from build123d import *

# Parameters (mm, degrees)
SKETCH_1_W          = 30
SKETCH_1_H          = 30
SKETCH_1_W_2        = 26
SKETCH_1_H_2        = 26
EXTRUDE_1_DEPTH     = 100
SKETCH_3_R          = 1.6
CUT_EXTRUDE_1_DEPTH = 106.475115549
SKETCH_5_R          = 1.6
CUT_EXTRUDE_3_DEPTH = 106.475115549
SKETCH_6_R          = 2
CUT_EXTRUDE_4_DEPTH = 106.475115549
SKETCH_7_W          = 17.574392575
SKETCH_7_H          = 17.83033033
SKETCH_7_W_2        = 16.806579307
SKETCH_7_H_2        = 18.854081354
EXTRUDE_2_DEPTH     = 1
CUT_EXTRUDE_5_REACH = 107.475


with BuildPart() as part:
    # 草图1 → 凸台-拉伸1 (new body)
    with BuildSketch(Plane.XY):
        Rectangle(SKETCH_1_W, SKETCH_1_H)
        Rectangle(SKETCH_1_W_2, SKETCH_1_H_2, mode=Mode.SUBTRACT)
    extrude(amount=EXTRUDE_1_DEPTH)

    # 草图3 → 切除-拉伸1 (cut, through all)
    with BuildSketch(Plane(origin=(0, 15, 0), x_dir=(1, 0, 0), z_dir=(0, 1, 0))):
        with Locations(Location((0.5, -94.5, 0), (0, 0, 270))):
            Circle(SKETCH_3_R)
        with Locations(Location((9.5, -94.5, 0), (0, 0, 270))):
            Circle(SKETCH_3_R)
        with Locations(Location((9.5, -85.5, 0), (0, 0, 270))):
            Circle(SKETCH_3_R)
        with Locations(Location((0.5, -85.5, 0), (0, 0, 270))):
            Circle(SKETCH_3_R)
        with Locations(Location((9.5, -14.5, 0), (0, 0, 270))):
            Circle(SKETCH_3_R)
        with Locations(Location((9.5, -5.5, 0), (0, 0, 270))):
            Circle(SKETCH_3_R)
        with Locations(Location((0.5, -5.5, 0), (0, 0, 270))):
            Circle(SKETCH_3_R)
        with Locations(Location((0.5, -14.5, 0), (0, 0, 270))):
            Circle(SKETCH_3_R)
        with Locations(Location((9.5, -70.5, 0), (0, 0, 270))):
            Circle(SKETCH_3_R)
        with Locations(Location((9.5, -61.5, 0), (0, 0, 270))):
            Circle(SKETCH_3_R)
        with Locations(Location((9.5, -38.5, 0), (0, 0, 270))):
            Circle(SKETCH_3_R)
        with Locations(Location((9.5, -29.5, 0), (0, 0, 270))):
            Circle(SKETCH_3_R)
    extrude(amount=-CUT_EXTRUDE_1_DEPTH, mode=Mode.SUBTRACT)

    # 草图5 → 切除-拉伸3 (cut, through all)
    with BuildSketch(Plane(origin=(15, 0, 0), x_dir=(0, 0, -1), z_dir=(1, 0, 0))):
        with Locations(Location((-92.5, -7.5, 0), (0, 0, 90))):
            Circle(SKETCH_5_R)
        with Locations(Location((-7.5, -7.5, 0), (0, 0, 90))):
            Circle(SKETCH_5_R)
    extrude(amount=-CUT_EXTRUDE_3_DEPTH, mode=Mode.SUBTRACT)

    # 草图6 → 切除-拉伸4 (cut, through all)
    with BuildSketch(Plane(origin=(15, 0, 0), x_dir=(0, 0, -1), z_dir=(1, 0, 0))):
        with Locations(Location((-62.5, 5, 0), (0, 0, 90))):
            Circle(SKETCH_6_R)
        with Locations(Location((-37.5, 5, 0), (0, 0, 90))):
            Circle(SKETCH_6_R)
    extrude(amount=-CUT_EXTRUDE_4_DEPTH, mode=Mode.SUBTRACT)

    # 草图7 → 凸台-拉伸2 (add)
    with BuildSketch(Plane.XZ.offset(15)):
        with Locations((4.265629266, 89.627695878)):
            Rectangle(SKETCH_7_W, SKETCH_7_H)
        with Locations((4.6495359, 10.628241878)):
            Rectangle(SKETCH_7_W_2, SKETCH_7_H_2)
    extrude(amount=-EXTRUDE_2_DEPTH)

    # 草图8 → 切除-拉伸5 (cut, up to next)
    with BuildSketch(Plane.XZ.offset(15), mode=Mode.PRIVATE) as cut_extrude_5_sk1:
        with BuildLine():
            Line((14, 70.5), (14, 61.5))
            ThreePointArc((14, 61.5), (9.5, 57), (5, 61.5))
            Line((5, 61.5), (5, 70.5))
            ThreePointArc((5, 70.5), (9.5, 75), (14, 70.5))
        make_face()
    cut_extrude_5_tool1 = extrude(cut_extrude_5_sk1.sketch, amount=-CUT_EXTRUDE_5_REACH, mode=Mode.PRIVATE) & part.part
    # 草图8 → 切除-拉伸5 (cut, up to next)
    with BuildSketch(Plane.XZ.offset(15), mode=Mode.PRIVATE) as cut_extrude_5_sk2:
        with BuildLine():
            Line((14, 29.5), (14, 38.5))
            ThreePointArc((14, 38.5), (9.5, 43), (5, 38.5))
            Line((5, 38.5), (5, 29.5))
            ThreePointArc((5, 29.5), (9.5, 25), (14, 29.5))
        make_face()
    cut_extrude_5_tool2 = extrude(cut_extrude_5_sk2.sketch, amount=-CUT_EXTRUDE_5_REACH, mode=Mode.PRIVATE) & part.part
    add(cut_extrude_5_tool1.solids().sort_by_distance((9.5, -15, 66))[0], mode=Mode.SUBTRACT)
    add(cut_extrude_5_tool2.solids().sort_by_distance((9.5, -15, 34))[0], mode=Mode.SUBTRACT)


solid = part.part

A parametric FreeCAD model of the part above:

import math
import FreeCAD as App
import Part
import Sketcher
Q = App.Units.Quantity

doc = App.newDocument("Part")
params = doc.addObject("Spreadsheet::Sheet", "Params")
for row, (alias, value) in enumerate([
    ("sketch1_width", "30 mm"),
    ("sketch1_width2", "26 mm"),
    ("pad1_length", "100 mm"),
    ("sketch2_diameter", "3.2 mm"),
    ("sketch3_diameter", "3.2 mm"),
    ("sketch4_diameter", "4 mm"),
    ("pad2_length", "1 mm"),
    ("sketch6_radius", "4.5 mm"),
    ("sketch6_height", "9 mm"),
    ("pocket4_length", "30 mm"),
    ("sketch7_radius", "4.5 mm"),
    ("sketch7_height", "9 mm"),
    ("pocket5_length", "30 mm"),
], start=1):
    params.set(f"A{row}", alias)
    params.set(f"B{row}", "=" + value)
    params.setAlias(f"B{row}", alias)

body = doc.addObject("PartDesign::Body", "Body")

sketch1 = doc.addObject("Sketcher::SketchObject", "Sketch")
body.addObject(sketch1)
sketch1.AttachmentSupport = (doc.XY_Plane, [""])
sketch1.MapMode = "FlatFace"
sketch1.addGeometry([
    Part.LineSegment(App.Vector(-15, 15, 0), App.Vector(-15, -15, 0)),
    Part.LineSegment(App.Vector(-15, -15, 0), App.Vector(15, -15, 0)),
    Part.LineSegment(App.Vector(15, -15, 0), App.Vector(15, 15, 0)),
    Part.LineSegment(App.Vector(15, 15, 0), App.Vector(-15, 15, 0)),
    Part.LineSegment(App.Vector(13, -13, 0), App.Vector(-13, -13, 0)),
    Part.LineSegment(App.Vector(-13, -13, 0), App.Vector(-13, 13, 0)),
    Part.LineSegment(App.Vector(-13, 13, 0), App.Vector(13, 13, 0)),
    Part.LineSegment(App.Vector(13, 13, 0), App.Vector(13, -13, 0)),
], False)
sketch1.addConstraint([
    Sketcher.Constraint("Coincident", 0, 2, 1, 1),
    Sketcher.Constraint("Coincident", 1, 2, 2, 1),
    Sketcher.Constraint("Coincident", 2, 2, 3, 1),
    Sketcher.Constraint("Coincident", 3, 2, 0, 1),
    Sketcher.Constraint("Coincident", 4, 2, 5, 1),
    Sketcher.Constraint("Coincident", 5, 2, 6, 1),
    Sketcher.Constraint("Coincident", 6, 2, 7, 1),
    Sketcher.Constraint("Coincident", 7, 2, 4, 1),
    Sketcher.Constraint("Vertical", 0),
    Sketcher.Constraint("Horizontal", 1),
    Sketcher.Constraint("Vertical", 2),
    Sketcher.Constraint("Horizontal", 3),
    Sketcher.Constraint("Horizontal", 4),
    Sketcher.Constraint("Vertical", 5),
    Sketcher.Constraint("Horizontal", 6),
    Sketcher.Constraint("Vertical", 7),
    Sketcher.Constraint("Symmetric", 0, 2, 2, 2, -1, 1),
    Sketcher.Constraint("Symmetric", 4, 2, 6, 2, -1, 1),
    Sketcher.Constraint("Equal", 3, 0),
    Sketcher.Constraint("Equal", 6, 5),
    Sketcher.Constraint("DistanceX", 1, 1, 1, 2, Q("30 mm")),
    Sketcher.Constraint("DistanceX", 4, 2, 4, 1, Q("26 mm")),
])
sketch1.setExpression("Constraints[20]", "Params.sketch1_width")
sketch1.setExpression("Constraints[21]", "Params.sketch1_width2")
pad1 = doc.addObject("PartDesign::Pad", "Pad")
body.addObject(pad1)
pad1.Profile = sketch1
pad1.setExpression("Length", "Params.pad1_length")

sketch2 = doc.addObject("Sketcher::SketchObject", "Sketch001")
body.addObject(sketch2)
sketch2.AttachmentSupport = (doc.XZ_Plane, [""])
sketch2.MapMode = "FlatFace"
sketch2.AttachmentOffset = App.Placement(App.Vector(0, 0, -15), App.Rotation())
sketch2.addGeometry([
    Part.Circle(App.Vector(0.5, 94.5, 0), App.Vector(0, 0, 1), 1.6),
    Part.Circle(App.Vector(9.5, 94.5, 0), App.Vector(0, 0, 1), 1.6),
    Part.Circle(App.Vector(9.5, 85.5, 0), App.Vector(0, 0, 1), 1.6),
    Part.Circle(App.Vector(0.5, 85.5, 0), App.Vector(0, 0, 1), 1.6),
    Part.Circle(App.Vector(9.5, 14.5, 0), App.Vector(0, 0, 1), 1.6),
    Part.Circle(App.Vector(9.5, 5.5, 0), App.Vector(0, 0, 1), 1.6),
    Part.Circle(App.Vector(0.5, 5.5, 0), App.Vector(0, 0, 1), 1.6),
    Part.Circle(App.Vector(0.5, 14.5, 0), App.Vector(0, 0, 1), 1.6),
    Part.Circle(App.Vector(9.5, 70.5, 0), App.Vector(0, 0, 1), 1.6),
    Part.Circle(App.Vector(9.5, 61.5, 0), App.Vector(0, 0, 1), 1.6),
    Part.Circle(App.Vector(9.5, 38.5, 0), App.Vector(0, 0, 1), 1.6),
    Part.Circle(App.Vector(9.5, 29.5, 0), App.Vector(0, 0, 1), 1.6),
], False)
sketch2.addConstraint([
    Sketcher.Constraint("Equal", 0, 1),
    Sketcher.Constraint("Equal", 1, 2),
    Sketcher.Constraint("Equal", 2, 3),
    Sketcher.Constraint("Equal", 3, 4),
    Sketcher.Constraint("Equal", 4, 5),
    Sketcher.Constraint("Equal", 5, 6),
    Sketcher.Constraint("Equal", 6, 7),
    Sketcher.Constraint("Equal", 7, 8),
    Sketcher.Constraint("Equal", 8, 9),
    Sketcher.Constraint("Equal", 9, 10),
    Sketcher.Constraint("Equal", 10, 11),
    Sketcher.Constraint("Horizontal", 0, 3, 1, 3),
    Sketcher.Constraint("Horizontal", 2, 3, 3, 3),
    Sketcher.Constraint("Horizontal", 5, 3, 6, 3),
    Sketcher.Constraint("Horizontal", 4, 3, 7, 3),
    Sketcher.Constraint("Vertical", 1, 3, 2, 3),
    Sketcher.Constraint("Vertical", 0, 3, 3, 3),
    Sketcher.Constraint("Vertical", 2, 3, 4, 3),
    Sketcher.Constraint("Vertical", 4, 3, 5, 3),
    Sketcher.Constraint("Vertical", 3, 3, 6, 3),
    Sketcher.Constraint("Vertical", 6, 3, 7, 3),
    Sketcher.Constraint("Vertical", 5, 3, 8, 3),
    Sketcher.Constraint("Vertical", 8, 3, 9, 3),
    Sketcher.Constraint("Vertical", 9, 3, 10, 3),
    Sketcher.Constraint("Vertical", 10, 3, 11, 3),
    Sketcher.Constraint("Diameter", 0, Q("3.2 mm")),
    Sketcher.Constraint("DistanceX", 0, 3, 1, 3, Q("9 mm")),
    Sketcher.Constraint("DistanceY", 2, 3, 1, 3, Q("9 mm")),
    Sketcher.Constraint("DistanceY", 4, 3, 2, 3, Q("71 mm")),
    Sketcher.Constraint("DistanceY", 5, 3, 4, 3, Q("9 mm")),
    Sketcher.Constraint("DistanceY", 8, 3, 2, 3, Q("15 mm")),
    Sketcher.Constraint("DistanceY", 9, 3, 8, 3, Q("9 mm")),
    Sketcher.Constraint("DistanceY", 10, 3, 9, 3, Q("23 mm")),
    Sketcher.Constraint("DistanceY", 11, 3, 10, 3, Q("9 mm")),
    Sketcher.Constraint("DistanceX", -1, 1, 0, 3, Q("0.5 mm")),
    Sketcher.Constraint("DistanceY", -1, 1, 0, 3, Q("94.5 mm")),
])
sketch2.setExpression("Constraints[25]", "Params.sketch2_diameter")
pocket1 = doc.addObject("PartDesign::Pocket", "Pocket")
body.addObject(pocket1)
pocket1.Profile = sketch2
pocket1.Type = "ThroughAll"
pocket1.Reversed = True

sketch3 = doc.addObject("Sketcher::SketchObject", "Sketch002")
body.addObject(sketch3)
sketch3.AttachmentSupport = (doc.YZ_Plane, [""])
sketch3.MapMode = "FlatFace"
sketch3.AttachmentOffset = App.Placement(App.Vector(0, 0, 15), App.Rotation())
sketch3.addGeometry([
    Part.Circle(App.Vector(-7.5, 92.5, 0), App.Vector(0, 0, 1), 1.6),
    Part.Circle(App.Vector(-7.5, 7.5, 0), App.Vector(0, 0, 1), 1.6),
], False)
sketch3.addConstraint([
    Sketcher.Constraint("Equal", 0, 1),
    Sketcher.Constraint("Vertical", 0, 3, 1, 3),
    Sketcher.Constraint("Diameter", 0, Q("3.2 mm")),
    Sketcher.Constraint("DistanceY", 1, 3, 0, 3, Q("85 mm")),
    Sketcher.Constraint("DistanceX", 0, 3, -1, 1, Q("7.5 mm")),
    Sketcher.Constraint("DistanceY", -1, 1, 0, 3, Q("92.5 mm")),
])
sketch3.setExpression("Constraints[2]", "Params.sketch3_diameter")
pocket2 = doc.addObject("PartDesign::Pocket", "Pocket001")
body.addObject(pocket2)
pocket2.Profile = sketch3
pocket2.Type = "ThroughAll"

sketch4 = doc.addObject("Sketcher::SketchObject", "Sketch003")
body.addObject(sketch4)
sketch4.AttachmentSupport = (doc.YZ_Plane, [""])
sketch4.MapMode = "FlatFace"
sketch4.AttachmentOffset = App.Placement(App.Vector(0, 0, 15), App.Rotation())
sketch4.addGeometry([
    Part.Circle(App.Vector(5, 62.5, 0), App.Vector(0, 0, 1), 2),
    Part.Circle(App.Vector(5, 37.5, 0), App.Vector(0, 0, 1), 2),
], False)
sketch4.addConstraint([
    Sketcher.Constraint("Equal", 0, 1),
    Sketcher.Constraint("Vertical", 0, 3, 1, 3),
    Sketcher.Constraint("Diameter", 0, Q("4 mm")),
    Sketcher.Constraint("DistanceX", -1, 1, 0, 3, Q("5 mm")),
    Sketcher.Constraint("DistanceY", 1, 3, 0, 3, Q("25 mm")),
    Sketcher.Constraint("DistanceY", -1, 1, 0, 3, Q("62.5 mm")),
])
sketch4.setExpression("Constraints[2]", "Params.sketch4_diameter")
pocket3 = doc.addObject("PartDesign::Pocket", "Pocket002")
body.addObject(pocket3)
pocket3.Profile = sketch4
pocket3.Type = "ThroughAll"

sketch5 = doc.addObject("Sketcher::SketchObject", "Sketch004")
body.addObject(sketch5)
sketch5.AttachmentSupport = (doc.XZ_Plane, [""])
sketch5.MapMode = "FlatFace"
sketch5.AttachmentOffset = App.Placement(App.Vector(0, 0, 15), App.Rotation())
sketch5.addGeometry([
    Part.LineSegment(App.Vector(-4.521567, 98.542861, 0), App.Vector(-4.521567, 80.712531, 0)),
    Part.LineSegment(App.Vector(-4.521567, 80.712531, 0), App.Vector(13.052826, 80.712531, 0)),
    Part.LineSegment(App.Vector(13.052826, 80.712531, 0), App.Vector(13.052826, 98.542861, 0)),
    Part.LineSegment(App.Vector(13.052826, 98.542861, 0), App.Vector(-4.521567, 98.542861, 0)),
    Part.LineSegment(App.Vector(-3.753754, 20.055283, 0), App.Vector(-3.753754, 1.201201, 0)),
    Part.LineSegment(App.Vector(-3.753754, 1.201201, 0), App.Vector(13.052826, 1.201201, 0)),
    Part.LineSegment(App.Vector(13.052826, 1.201201, 0), App.Vector(13.052826, 20.055283, 0)),
    Part.LineSegment(App.Vector(13.052826, 20.055283, 0), App.Vector(-3.753754, 20.055283, 0)),
], False)
sketch5.addConstraint([
    Sketcher.Constraint("Coincident", 0, 2, 1, 1),
    Sketcher.Constraint("Coincident", 1, 2, 2, 1),
    Sketcher.Constraint("Coincident", 2, 2, 3, 1),
    Sketcher.Constraint("Coincident", 3, 2, 0, 1),
    Sketcher.Constraint("Coincident", 4, 2, 5, 1),
    Sketcher.Constraint("Coincident", 5, 2, 6, 1),
    Sketcher.Constraint("Coincident", 6, 2, 7, 1),
    Sketcher.Constraint("Coincident", 7, 2, 4, 1),
    Sketcher.Constraint("Vertical", 0),
    Sketcher.Constraint("Horizontal", 1),
    Sketcher.Constraint("Vertical", 2),
    Sketcher.Constraint("Horizontal", 3),
    Sketcher.Constraint("Vertical", 4),
    Sketcher.Constraint("Horizontal", 5),
    Sketcher.Constraint("Vertical", 6),
    Sketcher.Constraint("Horizontal", 7),
    Sketcher.Constraint("Vertical", 2, 2, 5, 2),
    Sketcher.Constraint("DistanceX", 5, 1, 5, 2, Q("16.806579 mm")),
    Sketcher.Constraint("DistanceY", 0, 2, 0, 1, Q("17.83033 mm")),
    Sketcher.Constraint("DistanceY", 4, 2, 4, 1, Q("18.854081 mm")),
    Sketcher.Constraint("DistanceY", -1, 1, 4, 2, Q("1.201201 mm")),
    Sketcher.Constraint("DistanceX", 1, 1, 1, 2, Q("17.574393 mm")),
    Sketcher.Constraint("DistanceY", -1, 1, 0, 2, Q("80.712531 mm")),
    Sketcher.Constraint("DistanceX", 0, 2, -1, 1, Q("4.521567 mm")),
])
pad2 = doc.addObject("PartDesign::Pad", "Pad001")
body.addObject(pad2)
pad2.Profile = sketch5
pad2.setExpression("Length", "Params.pad2_length")
pad2.Reversed = True

sketch6 = doc.addObject("Sketcher::SketchObject", "Sketch005")
body.addObject(sketch6)
sketch6.AttachmentSupport = (doc.XZ_Plane, [""])
sketch6.MapMode = "FlatFace"
sketch6.AttachmentOffset = App.Placement(App.Vector(0, 0, 15), App.Rotation())
sketch6.addGeometry([
    Part.LineSegment(App.Vector(14, 61.5, 0), App.Vector(14, 70.5, 0)),
    Part.ArcOfCircle(Part.Circle(App.Vector(9.5, 70.5, 0), App.Vector(0, 0, 1), 4.5), math.radians(0), math.radians(180)),
    Part.LineSegment(App.Vector(5, 70.5, 0), App.Vector(5, 61.5, 0)),
    Part.ArcOfCircle(Part.Circle(App.Vector(9.5, 61.5, 0), App.Vector(0, 0, 1), 4.5), math.radians(180), math.radians(360)),
], False)
sketch6.addConstraint([
    Sketcher.Constraint("Tangent", 0, 2, 1, 1),
    Sketcher.Constraint("Tangent", 1, 2, 2, 1),
    Sketcher.Constraint("Tangent", 2, 2, 3, 1),
    Sketcher.Constraint("Tangent", 3, 2, 0, 1),
    Sketcher.Constraint("Vertical", 0),
    Sketcher.Constraint("Vertical", 2),
    Sketcher.Constraint("Radius", 1, Q("4.5 mm")),
    Sketcher.Constraint("DistanceY", 0, 1, 0, 2, Q("9 mm")),
    Sketcher.Constraint("DistanceX", -1, 1, 0, 2, Q("14 mm")),
    Sketcher.Constraint("DistanceY", -1, 1, 1, 3, Q("70.5 mm")),
])
sketch6.setExpression("Constraints[6]", "Params.sketch6_radius")
sketch6.setExpression("Constraints[7]", "Params.sketch6_height")
pocket4 = doc.addObject("PartDesign::Pocket", "Pocket003")
body.addObject(pocket4)
pocket4.Profile = sketch6
pocket4.setExpression("Length", "Params.pocket4_length")

sketch7 = doc.addObject("Sketcher::SketchObject", "Sketch006")
body.addObject(sketch7)
sketch7.AttachmentSupport = (doc.XZ_Plane, [""])
sketch7.MapMode = "FlatFace"
sketch7.AttachmentOffset = App.Placement(App.Vector(0, 0, 15), App.Rotation())
sketch7.addGeometry([
    Part.LineSegment(App.Vector(14, 29.5, 0), App.Vector(14, 38.5, 0)),
    Part.ArcOfCircle(Part.Circle(App.Vector(9.5, 38.5, 0), App.Vector(0, 0, 1), 4.5), math.radians(0), math.radians(180)),
    Part.LineSegment(App.Vector(5, 38.5, 0), App.Vector(5, 29.5, 0)),
    Part.ArcOfCircle(Part.Circle(App.Vector(9.5, 29.5, 0), App.Vector(0, 0, 1), 4.5), math.radians(180), math.radians(360)),
], False)
sketch7.addConstraint([
    Sketcher.Constraint("Tangent", 0, 2, 1, 1),
    Sketcher.Constraint("Tangent", 1, 2, 2, 1),
    Sketcher.Constraint("Tangent", 2, 2, 3, 1),
    Sketcher.Constraint("Tangent", 3, 2, 0, 1),
    Sketcher.Constraint("Vertical", 0),
    Sketcher.Constraint("Vertical", 2),
    Sketcher.Constraint("Radius", 1, Q("4.5 mm")),
    Sketcher.Constraint("DistanceY", 0, 1, 0, 2, Q("9 mm")),
    Sketcher.Constraint("DistanceX", -1, 1, 0, 2, Q("14 mm")),
    Sketcher.Constraint("DistanceY", -1, 1, 1, 3, Q("38.5 mm")),
])
sketch7.setExpression("Constraints[6]", "Params.sketch7_radius")
sketch7.setExpression("Constraints[7]", "Params.sketch7_height")
pocket5 = doc.addObject("PartDesign::Pocket", "Pocket004")
body.addObject(pocket5)
pocket5.Profile = sketch7
pocket5.setExpression("Length", "Params.pocket5_length")

doc.recompute()
